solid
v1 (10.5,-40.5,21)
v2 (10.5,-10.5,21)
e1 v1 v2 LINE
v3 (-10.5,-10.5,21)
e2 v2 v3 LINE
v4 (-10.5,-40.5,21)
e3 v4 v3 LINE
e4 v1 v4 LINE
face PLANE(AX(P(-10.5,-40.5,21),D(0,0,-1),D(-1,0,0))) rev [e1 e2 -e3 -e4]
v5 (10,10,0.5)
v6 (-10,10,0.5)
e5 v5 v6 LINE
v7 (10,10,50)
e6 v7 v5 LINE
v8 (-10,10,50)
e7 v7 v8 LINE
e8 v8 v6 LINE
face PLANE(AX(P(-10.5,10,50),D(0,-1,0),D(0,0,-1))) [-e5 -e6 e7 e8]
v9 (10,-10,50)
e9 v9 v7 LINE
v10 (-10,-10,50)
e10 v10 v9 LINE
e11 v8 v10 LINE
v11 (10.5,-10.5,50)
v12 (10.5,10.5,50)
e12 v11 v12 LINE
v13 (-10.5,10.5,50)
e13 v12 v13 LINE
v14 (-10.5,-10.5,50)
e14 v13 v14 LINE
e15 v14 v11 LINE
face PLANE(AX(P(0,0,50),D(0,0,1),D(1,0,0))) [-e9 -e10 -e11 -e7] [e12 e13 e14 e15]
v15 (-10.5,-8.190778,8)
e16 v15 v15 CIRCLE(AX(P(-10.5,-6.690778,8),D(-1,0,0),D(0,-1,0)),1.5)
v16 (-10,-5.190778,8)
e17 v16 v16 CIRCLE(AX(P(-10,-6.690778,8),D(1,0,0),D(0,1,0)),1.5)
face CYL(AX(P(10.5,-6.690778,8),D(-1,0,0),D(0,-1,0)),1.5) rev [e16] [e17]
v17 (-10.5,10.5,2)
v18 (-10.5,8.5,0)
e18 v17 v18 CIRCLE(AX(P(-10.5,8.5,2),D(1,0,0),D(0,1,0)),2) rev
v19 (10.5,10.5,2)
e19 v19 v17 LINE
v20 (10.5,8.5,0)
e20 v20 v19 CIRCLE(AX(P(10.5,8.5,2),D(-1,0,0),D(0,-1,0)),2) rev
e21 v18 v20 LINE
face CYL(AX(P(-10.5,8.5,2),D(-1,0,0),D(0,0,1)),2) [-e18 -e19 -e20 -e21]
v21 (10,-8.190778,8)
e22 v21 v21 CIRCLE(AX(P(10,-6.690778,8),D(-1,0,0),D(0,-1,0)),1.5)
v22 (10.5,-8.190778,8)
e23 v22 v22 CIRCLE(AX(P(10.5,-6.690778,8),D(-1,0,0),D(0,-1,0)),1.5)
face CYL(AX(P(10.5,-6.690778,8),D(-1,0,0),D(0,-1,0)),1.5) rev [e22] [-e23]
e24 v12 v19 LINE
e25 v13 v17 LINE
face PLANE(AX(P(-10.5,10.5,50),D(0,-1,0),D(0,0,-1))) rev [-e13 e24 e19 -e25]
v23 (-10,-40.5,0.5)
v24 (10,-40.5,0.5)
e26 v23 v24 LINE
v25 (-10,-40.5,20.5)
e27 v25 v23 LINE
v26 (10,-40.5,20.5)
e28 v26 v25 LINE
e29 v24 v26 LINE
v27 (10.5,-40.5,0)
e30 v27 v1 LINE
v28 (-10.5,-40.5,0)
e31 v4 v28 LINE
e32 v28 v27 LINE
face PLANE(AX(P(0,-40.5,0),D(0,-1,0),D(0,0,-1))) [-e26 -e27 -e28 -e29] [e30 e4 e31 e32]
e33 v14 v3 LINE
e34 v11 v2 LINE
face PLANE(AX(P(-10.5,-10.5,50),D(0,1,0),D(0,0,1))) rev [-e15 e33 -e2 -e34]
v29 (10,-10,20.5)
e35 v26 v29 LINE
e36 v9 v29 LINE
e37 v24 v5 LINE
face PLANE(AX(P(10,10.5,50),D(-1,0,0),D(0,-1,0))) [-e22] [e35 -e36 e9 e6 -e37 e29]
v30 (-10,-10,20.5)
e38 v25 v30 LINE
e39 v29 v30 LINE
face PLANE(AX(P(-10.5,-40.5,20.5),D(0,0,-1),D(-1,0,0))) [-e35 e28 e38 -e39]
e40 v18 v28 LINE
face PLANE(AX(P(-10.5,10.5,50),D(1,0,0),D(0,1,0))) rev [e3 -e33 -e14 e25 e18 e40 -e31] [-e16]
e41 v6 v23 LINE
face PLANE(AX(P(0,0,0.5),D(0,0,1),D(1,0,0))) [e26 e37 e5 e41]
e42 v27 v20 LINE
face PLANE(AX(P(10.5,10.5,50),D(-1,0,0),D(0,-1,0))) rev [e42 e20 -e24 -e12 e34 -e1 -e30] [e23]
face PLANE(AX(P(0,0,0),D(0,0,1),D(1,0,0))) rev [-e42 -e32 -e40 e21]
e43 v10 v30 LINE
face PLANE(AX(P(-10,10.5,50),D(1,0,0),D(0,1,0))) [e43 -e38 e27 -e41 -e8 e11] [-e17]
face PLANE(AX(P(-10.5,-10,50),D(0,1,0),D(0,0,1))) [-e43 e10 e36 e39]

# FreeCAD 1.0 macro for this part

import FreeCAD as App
import Part
import Sketcher
from FreeCAD import Vector
Q = App.Units.Quantity


def edges_at(feature, points):
    """Names of the edges that pass closest to the given points."""
    edges = feature.Shape.Edges
    near = lambda p: min(range(len(edges)), key=lambda i: edges[i].distToShape(Part.Vertex(*p))[0])
    return sorted({f"Edge{near(p) + 1}" for p in points})


def faces_at(feature, points):
    """Names of the faces that lie closest to the given points."""
    faces = feature.Shape.Faces
    near = lambda p: min(range(len(faces)), key=lambda i: faces[i].distToShape(Part.Vertex(*p))[0])
    return sorted({f"Face{near(p) + 1}" for p in points})

doc = App.newDocument("Part")
body = doc.addObject("PartDesign::Body", "Body")

# Sketch on XY plane
sketch1 = body.newObject("Sketcher::SketchObject", "Sketch")
sketch1.AttachmentSupport = (doc.getObject("XY_Plane"), [""])
sketch1.MapMode = "FlatFace"
sketch1.addGeometry([
    Part.LineSegment(Vector(-10, 10, 0), Vector(-10, -10, 0)),
    Part.LineSegment(Vector(-10, -10, 0), Vector(10, -10, 0)),
    Part.LineSegment(Vector(10, -10, 0), Vector(10, 10, 0)),
    Part.LineSegment(Vector(10, 10, 0), Vector(-10, 10, 0)),
], False)
sketch1.addConstraint([
    Sketcher.Constraint("Coincident", 0, 2, 1, 1),
    Sketcher.Constraint("Coincident", 1, 2, 2, 1),
    Sketcher.Constraint("Coincident", 2, 2, 3, 1),
    Sketcher.Constraint("Coincident", 3, 2, 0, 1),
    Sketcher.Constraint("Vertical", 0),
    Sketcher.Constraint("Horizontal", 1),
    Sketcher.Constraint("Vertical", 2),
    Sketcher.Constraint("Horizontal", 3),
    Sketcher.Constraint("Symmetric", 0, 2, 2, 2, -1, 1),
    Sketcher.Constraint("Equal", 3, 0),
    Sketcher.Constraint("DistanceX", 1, 1, 1, 2, Q("21 mm")),
])
pad1 = body.newObject("PartDesign::Pad", "Pad")
pad1.Profile = sketch1
pad1.Length = 50

# Sketch on XZ plane
sketch2 = body.newObject("Sketcher::SketchObject", "Sketch001")
sketch2.AttachmentSupport = (doc.getObject("XZ_Plane"), [""])
sketch2.MapMode = "FlatFace"
sketch2.AttachmentOffset = App.Placement(Vector(0, 0, 10.5), App.Rotation())
sketch2.addGeometry([
    Part.LineSegment(Vector(-10, 21, 0), Vector(-10, 0, 0)),
    Part.LineSegment(Vector(-10, 0, 0), Vector(10, 0, 0)),
    Part.LineSegment(Vector(10, 0, 0), Vector(10, 21, 0)),
    Part.LineSegment(Vector(10, 21, 0), Vector(-10, 21, 0)),
], False)
sketch2.addConstraint([
    Sketcher.Constraint("Coincident", 0, 2, 1, 1),
    Sketcher.Constraint("Coincident", 1, 2, 2, 1),
    Sketcher.Constraint("Coincident", 2, 2, 3, 1),
    Sketcher.Constraint("Coincident", 3, 2, 0, 1),
    Sketcher.Constraint("Vertical", 0),
    Sketcher.Constraint("Horizontal", 1),
    Sketcher.Constraint("Vertical", 2),
    Sketcher.Constraint("Horizontal", 3),
    Sketcher.Constraint("Symmetric", 0, 2, 1, 2, -1, 1),
    Sketcher.Constraint("Equal", 3, 0),
    Sketcher.Constraint("DistanceX", 1, 1, 1, 2, Q("21 mm")),
])
pad2 = body.newObject("PartDesign::Pad", "Pad001")
pad2.Profile = sketch2
pad2.Length = 30
doc.recompute()

thickness = body.newObject("PartDesign::Thickness", "Thickness")
thickness.Base = (pad2, faces_at(pad2, [(0, 0, 50), (0, -40.5, 10.5)]))
thickness.Value = 0.5
thickness.Reversed = True
thickness.Join = "Intersection"
doc.recompute()

fillet = body.newObject("PartDesign::Fillet", "Fillet")
fillet.Base = (thickness, edges_at(thickness, [(0, 10.5, 0)]))
fillet.Radius = 2

# Sketch on YZ plane
sketch3 = body.newObject("Sketcher::SketchObject", "Sketch002")
sketch3.AttachmentSupport = (doc.getObject("YZ_Plane"), [""])
sketch3.MapMode = "FlatFace"
sketch3.AttachmentOffset = App.Placement(Vector(0, 0, -10.5), App.Rotation())
sketch3.addGeometry(Part.Circle(Vector(-6.7, 8, 0), Vector(0, 0, 1), 1.5), False)
sketch3.addConstraint([
    Sketcher.Constraint("Diameter", 0, Q("3 mm")),
    Sketcher.Constraint("DistanceY", -1, 1, 0, 3, Q("8 mm")),
    Sketcher.Constraint("DistanceX", 0, 3, -1, 1, Q("6.690778 mm")),
])
pocket1 = body.newObject("PartDesign::Pocket", "Pocket")
pocket1.Profile = sketch3
pocket1.Type = "ThroughAll"
pocket1.Reversed = True

doc.recompute()
